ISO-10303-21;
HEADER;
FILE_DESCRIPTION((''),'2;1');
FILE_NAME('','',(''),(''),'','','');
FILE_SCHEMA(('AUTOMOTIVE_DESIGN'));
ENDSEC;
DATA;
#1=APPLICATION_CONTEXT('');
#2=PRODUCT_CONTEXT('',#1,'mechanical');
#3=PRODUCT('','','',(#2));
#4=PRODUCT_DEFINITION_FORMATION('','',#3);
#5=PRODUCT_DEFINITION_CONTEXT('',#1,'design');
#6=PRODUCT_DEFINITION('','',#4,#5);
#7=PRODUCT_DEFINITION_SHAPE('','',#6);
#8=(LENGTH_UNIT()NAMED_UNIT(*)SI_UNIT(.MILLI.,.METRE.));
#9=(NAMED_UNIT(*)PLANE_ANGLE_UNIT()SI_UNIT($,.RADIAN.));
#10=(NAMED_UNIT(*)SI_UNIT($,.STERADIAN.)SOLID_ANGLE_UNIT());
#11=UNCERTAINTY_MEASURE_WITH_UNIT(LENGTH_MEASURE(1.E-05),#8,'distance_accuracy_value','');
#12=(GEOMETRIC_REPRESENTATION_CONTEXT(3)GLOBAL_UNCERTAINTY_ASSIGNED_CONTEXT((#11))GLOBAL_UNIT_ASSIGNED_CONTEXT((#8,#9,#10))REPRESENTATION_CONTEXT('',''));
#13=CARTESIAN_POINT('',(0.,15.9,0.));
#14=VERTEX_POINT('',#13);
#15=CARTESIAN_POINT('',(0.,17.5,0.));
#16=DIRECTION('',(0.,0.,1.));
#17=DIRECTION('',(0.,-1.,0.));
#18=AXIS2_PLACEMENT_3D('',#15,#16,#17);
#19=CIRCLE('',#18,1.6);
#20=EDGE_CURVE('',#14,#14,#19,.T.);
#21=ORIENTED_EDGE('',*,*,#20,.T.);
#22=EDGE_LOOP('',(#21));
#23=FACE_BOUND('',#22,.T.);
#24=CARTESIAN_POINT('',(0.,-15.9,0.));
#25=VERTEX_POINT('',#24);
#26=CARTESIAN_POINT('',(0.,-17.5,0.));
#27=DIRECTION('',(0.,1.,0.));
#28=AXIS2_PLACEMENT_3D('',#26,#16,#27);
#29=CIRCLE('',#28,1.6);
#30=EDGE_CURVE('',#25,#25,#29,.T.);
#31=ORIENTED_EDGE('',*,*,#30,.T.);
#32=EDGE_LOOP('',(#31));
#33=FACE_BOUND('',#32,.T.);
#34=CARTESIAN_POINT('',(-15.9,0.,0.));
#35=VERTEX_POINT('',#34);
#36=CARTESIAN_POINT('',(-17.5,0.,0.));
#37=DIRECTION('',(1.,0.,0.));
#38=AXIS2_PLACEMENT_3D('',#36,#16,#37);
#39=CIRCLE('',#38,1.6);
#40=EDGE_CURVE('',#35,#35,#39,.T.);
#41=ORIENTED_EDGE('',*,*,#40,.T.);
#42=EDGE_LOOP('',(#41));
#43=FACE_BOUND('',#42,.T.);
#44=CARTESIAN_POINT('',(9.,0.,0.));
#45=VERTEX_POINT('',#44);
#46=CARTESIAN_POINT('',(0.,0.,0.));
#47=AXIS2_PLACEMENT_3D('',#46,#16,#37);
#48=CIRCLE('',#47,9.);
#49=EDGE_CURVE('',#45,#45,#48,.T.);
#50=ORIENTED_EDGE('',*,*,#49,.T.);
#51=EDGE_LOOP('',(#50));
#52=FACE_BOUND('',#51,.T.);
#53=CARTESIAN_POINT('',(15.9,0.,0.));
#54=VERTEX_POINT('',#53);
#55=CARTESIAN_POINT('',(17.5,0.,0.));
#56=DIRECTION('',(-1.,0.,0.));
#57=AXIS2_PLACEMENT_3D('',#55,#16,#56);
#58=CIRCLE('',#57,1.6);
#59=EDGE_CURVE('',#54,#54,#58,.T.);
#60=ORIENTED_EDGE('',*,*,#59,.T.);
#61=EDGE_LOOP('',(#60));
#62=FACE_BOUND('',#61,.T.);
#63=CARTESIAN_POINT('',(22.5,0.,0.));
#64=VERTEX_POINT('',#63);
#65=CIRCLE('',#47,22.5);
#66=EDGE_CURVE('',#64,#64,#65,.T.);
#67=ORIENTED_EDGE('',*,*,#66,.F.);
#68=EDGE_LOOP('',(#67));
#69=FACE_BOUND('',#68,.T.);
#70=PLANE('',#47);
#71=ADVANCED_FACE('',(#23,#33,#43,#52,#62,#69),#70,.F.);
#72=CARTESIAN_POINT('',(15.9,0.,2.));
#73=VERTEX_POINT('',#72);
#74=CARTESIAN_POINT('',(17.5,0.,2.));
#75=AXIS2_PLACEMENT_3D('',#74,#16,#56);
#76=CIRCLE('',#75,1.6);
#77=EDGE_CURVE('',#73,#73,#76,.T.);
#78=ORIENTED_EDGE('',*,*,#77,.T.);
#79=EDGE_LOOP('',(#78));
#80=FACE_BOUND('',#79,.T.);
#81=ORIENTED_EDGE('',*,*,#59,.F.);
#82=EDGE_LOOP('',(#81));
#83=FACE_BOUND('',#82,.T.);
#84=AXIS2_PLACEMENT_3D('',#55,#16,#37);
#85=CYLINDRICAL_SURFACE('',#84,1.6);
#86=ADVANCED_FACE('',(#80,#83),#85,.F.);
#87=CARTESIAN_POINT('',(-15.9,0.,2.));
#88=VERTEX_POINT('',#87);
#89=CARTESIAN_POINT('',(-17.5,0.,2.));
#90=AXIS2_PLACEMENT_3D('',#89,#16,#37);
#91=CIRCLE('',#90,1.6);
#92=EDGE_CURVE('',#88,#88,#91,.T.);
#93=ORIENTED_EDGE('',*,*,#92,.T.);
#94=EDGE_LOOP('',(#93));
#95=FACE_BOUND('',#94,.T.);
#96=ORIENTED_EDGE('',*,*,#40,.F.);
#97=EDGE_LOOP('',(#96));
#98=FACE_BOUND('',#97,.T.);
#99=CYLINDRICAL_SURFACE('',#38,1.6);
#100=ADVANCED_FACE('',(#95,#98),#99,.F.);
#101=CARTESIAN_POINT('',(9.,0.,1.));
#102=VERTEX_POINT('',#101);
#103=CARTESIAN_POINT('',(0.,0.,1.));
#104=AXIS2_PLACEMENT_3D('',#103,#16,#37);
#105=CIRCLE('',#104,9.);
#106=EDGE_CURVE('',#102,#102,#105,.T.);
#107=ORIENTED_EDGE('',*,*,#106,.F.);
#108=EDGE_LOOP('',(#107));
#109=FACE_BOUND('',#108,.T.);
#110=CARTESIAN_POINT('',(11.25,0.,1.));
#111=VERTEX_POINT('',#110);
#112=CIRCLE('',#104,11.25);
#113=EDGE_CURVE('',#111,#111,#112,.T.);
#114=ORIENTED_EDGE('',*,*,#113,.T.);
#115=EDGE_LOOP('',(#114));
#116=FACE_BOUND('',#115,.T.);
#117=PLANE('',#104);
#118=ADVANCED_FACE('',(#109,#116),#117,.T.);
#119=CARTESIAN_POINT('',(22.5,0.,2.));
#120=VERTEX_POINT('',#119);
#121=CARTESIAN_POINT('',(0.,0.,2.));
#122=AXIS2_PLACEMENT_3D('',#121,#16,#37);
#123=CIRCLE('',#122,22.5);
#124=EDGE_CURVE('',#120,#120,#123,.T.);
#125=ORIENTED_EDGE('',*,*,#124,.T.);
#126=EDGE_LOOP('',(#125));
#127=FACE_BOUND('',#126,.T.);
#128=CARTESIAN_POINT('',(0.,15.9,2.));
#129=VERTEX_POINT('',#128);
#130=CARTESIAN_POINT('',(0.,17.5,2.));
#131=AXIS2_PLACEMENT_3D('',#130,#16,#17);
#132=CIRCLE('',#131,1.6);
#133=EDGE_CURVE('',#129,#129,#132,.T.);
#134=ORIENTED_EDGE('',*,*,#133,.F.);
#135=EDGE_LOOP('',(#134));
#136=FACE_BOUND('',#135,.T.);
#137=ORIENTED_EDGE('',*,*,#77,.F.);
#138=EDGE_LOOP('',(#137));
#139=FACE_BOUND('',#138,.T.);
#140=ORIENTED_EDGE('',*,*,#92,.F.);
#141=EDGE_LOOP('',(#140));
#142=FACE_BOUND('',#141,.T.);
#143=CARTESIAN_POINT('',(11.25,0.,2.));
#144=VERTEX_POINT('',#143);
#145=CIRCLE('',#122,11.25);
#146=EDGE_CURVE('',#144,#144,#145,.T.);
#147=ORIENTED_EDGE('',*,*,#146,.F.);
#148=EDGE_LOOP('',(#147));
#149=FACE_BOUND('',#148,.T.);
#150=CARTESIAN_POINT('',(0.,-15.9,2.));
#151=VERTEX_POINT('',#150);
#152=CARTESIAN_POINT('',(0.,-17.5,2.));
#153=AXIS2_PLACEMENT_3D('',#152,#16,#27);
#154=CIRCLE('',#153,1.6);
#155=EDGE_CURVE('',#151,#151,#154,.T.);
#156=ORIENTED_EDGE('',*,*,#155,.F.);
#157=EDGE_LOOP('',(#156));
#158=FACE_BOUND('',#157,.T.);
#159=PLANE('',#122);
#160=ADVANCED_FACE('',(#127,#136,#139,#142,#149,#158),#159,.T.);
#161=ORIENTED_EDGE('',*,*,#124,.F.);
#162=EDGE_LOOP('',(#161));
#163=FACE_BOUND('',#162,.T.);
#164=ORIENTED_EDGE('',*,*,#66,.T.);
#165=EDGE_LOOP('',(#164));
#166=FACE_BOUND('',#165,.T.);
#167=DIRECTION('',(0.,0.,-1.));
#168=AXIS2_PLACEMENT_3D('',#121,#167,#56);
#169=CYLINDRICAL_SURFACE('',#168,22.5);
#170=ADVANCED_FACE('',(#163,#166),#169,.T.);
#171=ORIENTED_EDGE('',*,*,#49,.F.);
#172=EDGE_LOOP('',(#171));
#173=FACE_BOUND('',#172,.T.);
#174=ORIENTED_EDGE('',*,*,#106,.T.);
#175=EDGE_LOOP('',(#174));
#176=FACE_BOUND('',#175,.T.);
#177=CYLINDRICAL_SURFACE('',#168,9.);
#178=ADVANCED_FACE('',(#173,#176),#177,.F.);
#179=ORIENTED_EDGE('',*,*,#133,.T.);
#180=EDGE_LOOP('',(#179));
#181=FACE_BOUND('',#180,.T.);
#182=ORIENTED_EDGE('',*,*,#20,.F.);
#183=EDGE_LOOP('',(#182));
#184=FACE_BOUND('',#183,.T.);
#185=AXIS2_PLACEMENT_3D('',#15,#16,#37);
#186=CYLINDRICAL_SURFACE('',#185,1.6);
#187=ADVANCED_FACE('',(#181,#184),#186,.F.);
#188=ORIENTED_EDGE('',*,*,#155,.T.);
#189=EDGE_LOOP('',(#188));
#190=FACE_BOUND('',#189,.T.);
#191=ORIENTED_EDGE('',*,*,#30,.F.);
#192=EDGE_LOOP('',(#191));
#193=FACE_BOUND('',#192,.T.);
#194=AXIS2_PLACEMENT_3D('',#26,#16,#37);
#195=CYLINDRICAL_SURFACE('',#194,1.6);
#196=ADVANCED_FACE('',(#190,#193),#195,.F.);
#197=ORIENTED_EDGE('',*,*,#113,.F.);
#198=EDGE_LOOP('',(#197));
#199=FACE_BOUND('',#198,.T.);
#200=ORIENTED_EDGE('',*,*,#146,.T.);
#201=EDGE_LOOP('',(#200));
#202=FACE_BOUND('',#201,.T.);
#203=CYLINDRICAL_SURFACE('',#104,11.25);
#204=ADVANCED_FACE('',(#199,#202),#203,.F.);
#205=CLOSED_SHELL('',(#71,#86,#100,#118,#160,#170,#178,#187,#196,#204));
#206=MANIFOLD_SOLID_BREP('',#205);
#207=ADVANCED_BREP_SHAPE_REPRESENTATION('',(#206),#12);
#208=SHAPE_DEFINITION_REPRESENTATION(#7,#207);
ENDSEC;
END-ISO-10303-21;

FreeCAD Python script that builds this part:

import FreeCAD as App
import Part
import Sketcher

V = App.Vector

doc = App.newDocument("Part")
body = doc.addObject("PartDesign::Body", "Body")

# Sketch on XY plane
sketch1 = body.newObject("Sketcher::SketchObject", "Sketch")
sketch1.AttachmentSupport = (doc.getObject("XY_Plane"), [""])
sketch1.MapMode = "FlatFace"
sketch1.addGeometry(Part.Circle(V(0, 0, 0), V(0, 0, 1), 22.5), False)
sketch1.addGeometry(Part.Circle(V(0, 0, 0), V(0, 0, 1), 9), False)
sketch1.addConstraint(Sketcher.Constraint("Coincident", 0, 3, -1, 1))
sketch1.addConstraint(Sketcher.Constraint("Coincident", 1, 3, -1, 1))
sketch1.addConstraint(Sketcher.Constraint("Diameter", 0, 45.0))
sketch1.addConstraint(Sketcher.Constraint("Diameter", 1, 18.0))
pad1 = body.newObject("PartDesign::Pad", "Pad")
pad1.Profile = sketch1
pad1.Length = 2

# Sketch on XY plane
sketch2 = body.newObject("Sketcher::SketchObject", "Sketch001")
sketch2.AttachmentSupport = (doc.getObject("XY_Plane"), [""])
sketch2.MapMode = "FlatFace"
sketch2.AttachmentOffset = App.Placement(V(0, 0, 2), App.Rotation())
sketch2.addGeometry(Part.Circle(V(-17.5, 0, 0), V(0, 0, 1), 1.6), False)
sketch2.addConstraint(Sketcher.Constraint("PointOnObject", 0, 3, -1))
sketch2.addConstraint(Sketcher.Constraint("Diameter", 0, 3.2))
sketch2.addConstraint(Sketcher.Constraint("DistanceX", 0, 3, -1, 1, 17.5))
pocket1 = body.newObject("PartDesign::Pocket", "Pocket")
pocket1.Profile = sketch2
pocket1.Type = "ThroughAll"
doc.recompute()

polarpattern = body.newObject("PartDesign::PolarPattern", "PolarPattern")
polarpattern.Originals = [pocket1]
polarpattern.Axis = (doc.getObject("Z_Axis"), [""])
polarpattern.Angle = 360
polarpattern.Occurrences = 4
body.Tip = polarpattern

# Sketch on XY plane
sketch3 = body.newObject("Sketcher::SketchObject", "Sketch002")
sketch3.AttachmentSupport = (doc.getObject("XY_Plane"), [""])
sketch3.MapMode = "FlatFace"
sketch3.AttachmentOffset = App.Placement(V(0, 0, 2), App.Rotation())
sketch3.addGeometry(Part.Circle(V(0, 0, 0), V(0, 0, 1), 11.25), False)
sketch3.addGeometry(Part.Circle(V(0, 0, 0), V(0, 0, 1), 9), False)
sketch3.addConstraint(Sketcher.Constraint("Coincident", 0, 3, -1, 1))
sketch3.addConstraint(Sketcher.Constraint("Coincident", 1, 3, -1, 1))
sketch3.addConstraint(Sketcher.Constraint("Diameter", 1, 18.0))
sketch3.addConstraint(Sketcher.Constraint("Diameter", 0, 22.5))
pocket2 = body.newObject("PartDesign::Pocket", "Pocket001")
pocket2.Profile = sketch3
pocket2.Length = 1

doc.recompute()
